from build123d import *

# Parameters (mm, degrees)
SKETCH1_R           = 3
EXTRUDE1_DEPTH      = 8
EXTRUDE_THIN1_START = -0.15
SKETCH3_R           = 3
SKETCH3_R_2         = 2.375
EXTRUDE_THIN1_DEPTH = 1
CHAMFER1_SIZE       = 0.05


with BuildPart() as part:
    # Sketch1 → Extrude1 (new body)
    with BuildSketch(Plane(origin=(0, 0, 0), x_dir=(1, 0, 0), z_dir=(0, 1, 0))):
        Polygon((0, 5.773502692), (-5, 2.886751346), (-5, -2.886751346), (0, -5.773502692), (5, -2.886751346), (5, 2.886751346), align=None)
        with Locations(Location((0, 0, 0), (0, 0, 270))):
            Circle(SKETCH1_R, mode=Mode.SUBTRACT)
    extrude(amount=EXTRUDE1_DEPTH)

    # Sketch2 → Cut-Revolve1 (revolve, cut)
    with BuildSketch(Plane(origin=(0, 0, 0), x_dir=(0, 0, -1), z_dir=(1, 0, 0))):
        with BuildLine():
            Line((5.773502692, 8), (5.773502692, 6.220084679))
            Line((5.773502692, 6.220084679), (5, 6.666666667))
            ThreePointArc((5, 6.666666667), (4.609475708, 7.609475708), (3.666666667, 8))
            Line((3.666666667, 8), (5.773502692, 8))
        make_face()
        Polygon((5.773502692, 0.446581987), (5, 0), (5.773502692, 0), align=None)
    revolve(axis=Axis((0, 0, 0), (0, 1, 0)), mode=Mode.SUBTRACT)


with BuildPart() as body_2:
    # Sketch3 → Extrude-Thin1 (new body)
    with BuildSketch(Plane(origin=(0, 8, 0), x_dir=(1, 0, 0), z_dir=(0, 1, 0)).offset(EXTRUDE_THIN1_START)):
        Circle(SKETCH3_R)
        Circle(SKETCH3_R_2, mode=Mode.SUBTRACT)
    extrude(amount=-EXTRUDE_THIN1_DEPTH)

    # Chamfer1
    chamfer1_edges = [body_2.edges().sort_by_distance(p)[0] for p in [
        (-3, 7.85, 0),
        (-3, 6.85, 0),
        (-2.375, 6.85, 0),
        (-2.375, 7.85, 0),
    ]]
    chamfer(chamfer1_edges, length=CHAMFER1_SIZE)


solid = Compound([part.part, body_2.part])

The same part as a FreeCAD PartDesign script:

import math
import FreeCAD as App
import Part
import Sketcher

V = App.Vector
Q = App.Units.Quantity


def edges_at(feature, points):
    """Names of the edges that pass closest to the given points."""
    edges = feature.Shape.Edges
    near = lambda p: min(range(len(edges)), key=lambda i: edges[i].distToShape(Part.Vertex(*p))[0])
    return sorted({f"Edge{near(p) + 1}" for p in points})


def add_polygon(sketch, points):
    """Adds a closed chain of lines whose ends are joined by coincident constraints."""
    first, n = sketch.GeometryCount, len(points)
    for a, b in zip(points, points[1:] + points[:1]):
        sketch.addGeometry(Part.LineSegment(App.Vector(*a, 0), App.Vector(*b, 0)), False)
    for i in range(n):
        sketch.addConstraint(Sketcher.Constraint("Coincident", first + i, 2, first + (i + 1) % n, 1))

doc = App.newDocument("Part")
body = doc.addObject("PartDesign::Body", "Body")

sketch1 = body.newObject("Sketcher::SketchObject", "Sketch")
sketch1.AttachmentSupport = (doc.getObject("XZ_Plane"), [""])
sketch1.MapMode = "FlatFace"
add_polygon(sketch1, [(0, -5.8), (-5, -2.9), (-5, 2.9), (0, 5.8), (5, 2.9), (5, -2.9)])
sketch1.addGeometry(Part.Circle(V(0, 0, 0), V(0, 0, 1), 3), False)
sketch1.addConstraint(Sketcher.Constraint("Vertical", 1))
sketch1.addConstraint(Sketcher.Constraint("Vertical", 4))
sketch1.addConstraint(Sketcher.Constraint("Coincident", 6, 3, -1, 1))
sketch1.addConstraint(Sketcher.Constraint("Symmetric", 0, 2, 3, 2, -1, 1))
sketch1.addConstraint(Sketcher.Constraint("Symmetric", 2, 2, 5, 2, -1, 1))
sketch1.addConstraint(Sketcher.Constraint("PointOnObject", 2, 2, -2))
sketch1.addConstraint(Sketcher.Constraint("Parallel", 2, 5))
sketch1.addConstraint(Sketcher.Constraint("Horizontal", 1, 2, 3, 2))
sketch1.addConstraint(Sketcher.Constraint("Diameter", 6, 6.0))
sketch1.addConstraint(Sketcher.Constraint("Angle", 0, Q("150 deg")))
sketch1.addConstraint(Sketcher.Constraint("DistanceX", 0, 2, -1, 1, 5.0))
sketch1.addConstraint(Sketcher.Constraint("DistanceY", 1, 1, 1, 2, 5.773503))
pad1 = body.newObject("PartDesign::Pad", "Pad")
pad1.Profile = sketch1
pad1.Length = 8
pad1.Reversed = True

sketch2 = body.newObject("Sketcher::SketchObject", "Sketch001")
sketch2.AttachmentSupport = (doc.getObject("YZ_Plane"), [""])
sketch2.MapMode = "FlatFace"
sketch2.addGeometry(Part.LineSegment(V(6.22, -5.77, 0), V(8, -5.77, 0)), False)
sketch2.addGeometry(Part.LineSegment(V(8, -5.77, 0), V(8, -3.67, 0)), False)
sketch2.addGeometry(Part.ArcOfCircle(Part.Circle(V(6.67, -3.67, 0), V(0, 0, 1), 1.33), math.radians(-90), math.radians(0)), False)
sketch2.addGeometry(Part.LineSegment(V(6.67, -5, 0), V(6.22, -5.77, 0)), False)
add_polygon(sketch2, [(0.45, -5.77), (0, -5), (0, -5.77)])
sketch2.addConstraint(Sketcher.Constraint("Coincident", 0, 2, 1, 1))
sketch2.addConstraint(Sketcher.Constraint("Tangent", 1, 2, 2, 2))
sketch2.addConstraint(Sketcher.Constraint("Coincident", 2, 1, 3, 1))
sketch2.addConstraint(Sketcher.Constraint("Coincident", 3, 2, 0, 1))
sketch2.addConstraint(Sketcher.Constraint("Horizontal", 0))
sketch2.addConstraint(Sketcher.Constraint("Vertical", 1))
sketch2.addConstraint(Sketcher.Constraint("Vertical", 5))
sketch2.addConstraint(Sketcher.Constraint("Horizontal", 6))
sketch2.addConstraint(Sketcher.Constraint("PointOnObject", 4, 2, -2))
sketch2.addConstraint(Sketcher.Constraint("Horizontal", 2, 1, 4, 2))
sketch2.addConstraint(Sketcher.Constraint("Horizontal", 3, 2, 5, 2))
sketch2.addConstraint(Sketcher.Constraint("Equal", 3, 4))
sketch2.addConstraint(Sketcher.Constraint("Angle", 3, Q("-120 deg")))
sketch2.addConstraint(Sketcher.Constraint("DistanceX", -1, 1, 0, 2, 8.0))
sketch2.addConstraint(Sketcher.Constraint("DistanceY", 2, 1, -1, 1, 5.0))
sketch2.addConstraint(Sketcher.Constraint("Radius", 2, 1.333333))
sketch2.addConstraint(Sketcher.Constraint("DistanceX", 6, 1, 6, 2, 0.446582))
sketch2.addConstraint(Sketcher.Constraint("DistanceX", 0, 1, 0, 2, 1.779915))
groove = body.newObject("PartDesign::Groove", "Groove")
groove.Profile = sketch2
groove.ReferenceAxis = (sketch2, ["H_Axis"])
groove.Angle = 360
body2 = doc.addObject("PartDesign::Body", "Body001")

sketch3 = body2.newObject("Sketcher::SketchObject", "Sketch002")
sketch3.AttachmentSupport = (doc.getObject("XZ_Plane001"), [""])
sketch3.MapMode = "FlatFace"
sketch3.AttachmentOffset = App.Placement(V(0, 0, -7.85), App.Rotation())
sketch3.addGeometry(Part.Circle(V(0, 0, 0), V(0, 0, 1), 3), False)
sketch3.addGeometry(Part.Circle(V(0, 0, 0), V(0, 0, 1), 2.4), False)
sketch3.addConstraint(Sketcher.Constraint("Coincident", 0, 3, -1, 1))
sketch3.addConstraint(Sketcher.Constraint("Coincident", 1, 3, -1, 1))
sketch3.addConstraint(Sketcher.Constraint("Diameter", 0, 6.0))
sketch3.addConstraint(Sketcher.Constraint("Diameter", 1, 4.75))
pad2 = body2.newObject("PartDesign::Pad", "Pad001")
pad2.Profile = sketch3
pad2.Length = 1
doc.recompute()

chamfer = body2.newObject("PartDesign::Chamfer", "Chamfer")
chamfer.Base = (pad2, edges_at(pad2, [
    (-3, 7.85, 0),
    (-3, 6.85, 0),
    (-2.375, 6.85, 0),
    (-2.375, 7.85, 0),
]))
chamfer.Size = 0.05

doc.recompute()
